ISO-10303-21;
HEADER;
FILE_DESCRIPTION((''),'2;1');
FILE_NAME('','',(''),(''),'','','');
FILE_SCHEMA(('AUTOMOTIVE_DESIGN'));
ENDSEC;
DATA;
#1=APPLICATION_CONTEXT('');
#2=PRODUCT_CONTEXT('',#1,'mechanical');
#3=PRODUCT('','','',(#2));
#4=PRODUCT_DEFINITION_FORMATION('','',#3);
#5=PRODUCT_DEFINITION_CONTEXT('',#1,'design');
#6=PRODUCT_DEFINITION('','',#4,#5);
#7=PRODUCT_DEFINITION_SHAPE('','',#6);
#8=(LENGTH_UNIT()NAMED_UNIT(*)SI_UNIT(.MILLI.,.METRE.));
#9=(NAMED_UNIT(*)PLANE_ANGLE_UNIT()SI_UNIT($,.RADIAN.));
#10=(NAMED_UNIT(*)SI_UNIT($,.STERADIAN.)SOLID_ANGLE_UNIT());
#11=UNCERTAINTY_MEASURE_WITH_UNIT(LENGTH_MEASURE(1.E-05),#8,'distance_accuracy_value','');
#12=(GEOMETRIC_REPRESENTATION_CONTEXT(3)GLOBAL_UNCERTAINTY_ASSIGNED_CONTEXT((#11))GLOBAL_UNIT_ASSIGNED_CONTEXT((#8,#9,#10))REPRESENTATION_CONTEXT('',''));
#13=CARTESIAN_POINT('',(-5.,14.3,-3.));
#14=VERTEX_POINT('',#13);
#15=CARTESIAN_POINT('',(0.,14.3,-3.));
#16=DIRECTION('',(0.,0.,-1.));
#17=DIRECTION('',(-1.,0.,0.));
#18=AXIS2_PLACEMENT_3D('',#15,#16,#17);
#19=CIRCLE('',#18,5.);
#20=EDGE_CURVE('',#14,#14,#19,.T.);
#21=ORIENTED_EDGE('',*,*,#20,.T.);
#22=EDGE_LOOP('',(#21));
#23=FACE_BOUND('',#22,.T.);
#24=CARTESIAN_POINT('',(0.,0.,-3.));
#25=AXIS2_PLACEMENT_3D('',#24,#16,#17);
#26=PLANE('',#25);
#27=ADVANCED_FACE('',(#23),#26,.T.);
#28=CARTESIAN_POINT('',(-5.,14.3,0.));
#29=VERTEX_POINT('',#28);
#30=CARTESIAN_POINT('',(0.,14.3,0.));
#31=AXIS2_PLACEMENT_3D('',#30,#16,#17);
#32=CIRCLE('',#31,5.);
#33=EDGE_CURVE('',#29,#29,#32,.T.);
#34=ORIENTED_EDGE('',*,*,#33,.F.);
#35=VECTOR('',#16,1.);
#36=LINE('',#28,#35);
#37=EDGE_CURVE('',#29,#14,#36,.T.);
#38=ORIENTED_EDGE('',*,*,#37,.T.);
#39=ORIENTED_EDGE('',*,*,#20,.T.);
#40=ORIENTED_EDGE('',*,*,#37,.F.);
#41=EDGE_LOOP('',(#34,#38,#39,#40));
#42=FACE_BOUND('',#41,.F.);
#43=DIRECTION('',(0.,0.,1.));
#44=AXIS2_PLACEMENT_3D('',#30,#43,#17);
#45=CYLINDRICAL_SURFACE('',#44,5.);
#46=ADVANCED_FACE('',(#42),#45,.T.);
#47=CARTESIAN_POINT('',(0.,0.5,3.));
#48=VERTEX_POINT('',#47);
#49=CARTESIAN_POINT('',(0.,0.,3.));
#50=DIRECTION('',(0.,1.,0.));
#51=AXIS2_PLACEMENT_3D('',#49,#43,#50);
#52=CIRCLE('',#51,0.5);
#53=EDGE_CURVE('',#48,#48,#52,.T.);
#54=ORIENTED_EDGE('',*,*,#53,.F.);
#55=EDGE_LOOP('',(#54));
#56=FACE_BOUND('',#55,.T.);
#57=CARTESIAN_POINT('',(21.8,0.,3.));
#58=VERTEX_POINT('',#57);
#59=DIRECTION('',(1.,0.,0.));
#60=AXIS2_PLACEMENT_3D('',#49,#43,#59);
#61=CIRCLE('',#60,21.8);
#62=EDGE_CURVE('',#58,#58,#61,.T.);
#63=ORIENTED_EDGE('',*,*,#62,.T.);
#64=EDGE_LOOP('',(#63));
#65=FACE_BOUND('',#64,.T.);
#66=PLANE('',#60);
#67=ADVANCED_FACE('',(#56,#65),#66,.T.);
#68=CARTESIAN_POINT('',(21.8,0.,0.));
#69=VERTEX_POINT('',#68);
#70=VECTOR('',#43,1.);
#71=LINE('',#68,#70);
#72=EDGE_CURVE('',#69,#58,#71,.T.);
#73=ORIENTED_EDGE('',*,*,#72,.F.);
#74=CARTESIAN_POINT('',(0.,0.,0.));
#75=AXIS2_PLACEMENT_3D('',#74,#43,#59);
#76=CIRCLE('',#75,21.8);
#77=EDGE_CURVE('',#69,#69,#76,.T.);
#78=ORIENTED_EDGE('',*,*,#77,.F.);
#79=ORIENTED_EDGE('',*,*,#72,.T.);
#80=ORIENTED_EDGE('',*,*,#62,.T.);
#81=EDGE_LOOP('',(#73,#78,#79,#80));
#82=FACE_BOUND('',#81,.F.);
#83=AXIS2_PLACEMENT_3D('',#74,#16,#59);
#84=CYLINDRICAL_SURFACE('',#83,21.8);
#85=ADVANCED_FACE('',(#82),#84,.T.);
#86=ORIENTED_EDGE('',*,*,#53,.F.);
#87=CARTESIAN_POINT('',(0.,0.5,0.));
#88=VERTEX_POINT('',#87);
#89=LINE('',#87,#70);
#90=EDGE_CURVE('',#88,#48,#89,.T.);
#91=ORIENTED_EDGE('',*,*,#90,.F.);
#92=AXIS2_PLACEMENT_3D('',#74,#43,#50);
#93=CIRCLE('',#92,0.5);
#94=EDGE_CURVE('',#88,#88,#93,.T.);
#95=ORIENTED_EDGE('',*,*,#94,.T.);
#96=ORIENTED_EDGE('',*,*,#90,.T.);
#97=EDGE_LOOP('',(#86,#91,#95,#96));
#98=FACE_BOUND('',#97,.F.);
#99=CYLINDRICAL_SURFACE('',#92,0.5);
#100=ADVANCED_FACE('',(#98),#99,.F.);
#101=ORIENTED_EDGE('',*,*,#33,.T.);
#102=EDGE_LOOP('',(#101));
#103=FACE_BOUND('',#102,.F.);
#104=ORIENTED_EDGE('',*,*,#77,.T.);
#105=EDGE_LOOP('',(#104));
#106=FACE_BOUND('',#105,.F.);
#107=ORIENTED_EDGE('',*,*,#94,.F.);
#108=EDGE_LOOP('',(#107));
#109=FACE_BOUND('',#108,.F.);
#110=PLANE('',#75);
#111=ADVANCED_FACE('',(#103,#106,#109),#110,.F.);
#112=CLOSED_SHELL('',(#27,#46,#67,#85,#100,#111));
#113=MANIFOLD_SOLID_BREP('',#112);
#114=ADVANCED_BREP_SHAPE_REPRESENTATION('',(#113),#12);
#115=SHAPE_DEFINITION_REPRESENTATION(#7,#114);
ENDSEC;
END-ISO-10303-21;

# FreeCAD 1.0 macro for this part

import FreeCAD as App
import Part
import Sketcher

V = App.Vector

doc = App.newDocument("Part")
body = doc.addObject("PartDesign::Body", "Body")

# Sketch on XY plane
sketch1 = doc.addObject("Sketcher::SketchObject", "Sketch")
body.addObject(sketch1)
sketch1.AttachmentSupport = (doc.XY_Plane, [""])
sketch1.MapMode = "FlatFace"
sketch1.addGeometry(Part.Circle(V(0, 0, 0), V(0, 0, 1), 22), False)
sketch1.addConstraint(Sketcher.Constraint("Coincident", 0, 3, -1, 1))
sketch1.addConstraint(Sketcher.Constraint("Diameter", 0, 43.6))
pad1 = doc.addObject("PartDesign::Pad", "Pad")
body.addObject(pad1)
pad1.Profile = sketch1
pad1.Length = 3

# Sketch on XY plane
sketch2 = doc.addObject("Sketcher::SketchObject", "Sketch001")
body.addObject(sketch2)
sketch2.AttachmentSupport = (doc.XY_Plane, [""])
sketch2.MapMode = "FlatFace"
sketch2.addGeometry(Part.Circle(V(0, 14, 0), V(0, 0, 1), 5), False)
sketch2.addConstraint(Sketcher.Constraint("PointOnObject", 0, 3, -2))
sketch2.addConstraint(Sketcher.Constraint("Diameter", 0, 10.0))
sketch2.addConstraint(Sketcher.Constraint("DistanceY", -1, 1, 0, 3, 14.3))
pad2 = doc.addObject("PartDesign::Pad", "Pad001")
body.addObject(pad2)
pad2.Profile = sketch2
pad2.Length = 3
pad2.Reversed = True

# Sketch on XY plane
sketch3 = doc.addObject("Sketcher::SketchObject", "Sketch002")
body.addObject(sketch3)
sketch3.AttachmentSupport = (doc.XY_Plane, [""])
sketch3.MapMode = "FlatFace"
sketch3.addGeometry(Part.Circle(V(0, 0, 0), V(0, 0, 1), 0.5), False)
sketch3.addConstraint(Sketcher.Constraint("Coincident", 0, 3, -1, 1))
sketch3.addConstraint(Sketcher.Constraint("Diameter", 0, 1.0))
doc.recompute()
hole = doc.addObject("PartDesign::Hole", "Hole")
body.addObject(hole)
hole.Profile = sketch3
hole.ThreadType = "None"
hole.Diameter = 1
hole.DepthType = "ThroughAll"
hole.Reversed = True

doc.recompute()
